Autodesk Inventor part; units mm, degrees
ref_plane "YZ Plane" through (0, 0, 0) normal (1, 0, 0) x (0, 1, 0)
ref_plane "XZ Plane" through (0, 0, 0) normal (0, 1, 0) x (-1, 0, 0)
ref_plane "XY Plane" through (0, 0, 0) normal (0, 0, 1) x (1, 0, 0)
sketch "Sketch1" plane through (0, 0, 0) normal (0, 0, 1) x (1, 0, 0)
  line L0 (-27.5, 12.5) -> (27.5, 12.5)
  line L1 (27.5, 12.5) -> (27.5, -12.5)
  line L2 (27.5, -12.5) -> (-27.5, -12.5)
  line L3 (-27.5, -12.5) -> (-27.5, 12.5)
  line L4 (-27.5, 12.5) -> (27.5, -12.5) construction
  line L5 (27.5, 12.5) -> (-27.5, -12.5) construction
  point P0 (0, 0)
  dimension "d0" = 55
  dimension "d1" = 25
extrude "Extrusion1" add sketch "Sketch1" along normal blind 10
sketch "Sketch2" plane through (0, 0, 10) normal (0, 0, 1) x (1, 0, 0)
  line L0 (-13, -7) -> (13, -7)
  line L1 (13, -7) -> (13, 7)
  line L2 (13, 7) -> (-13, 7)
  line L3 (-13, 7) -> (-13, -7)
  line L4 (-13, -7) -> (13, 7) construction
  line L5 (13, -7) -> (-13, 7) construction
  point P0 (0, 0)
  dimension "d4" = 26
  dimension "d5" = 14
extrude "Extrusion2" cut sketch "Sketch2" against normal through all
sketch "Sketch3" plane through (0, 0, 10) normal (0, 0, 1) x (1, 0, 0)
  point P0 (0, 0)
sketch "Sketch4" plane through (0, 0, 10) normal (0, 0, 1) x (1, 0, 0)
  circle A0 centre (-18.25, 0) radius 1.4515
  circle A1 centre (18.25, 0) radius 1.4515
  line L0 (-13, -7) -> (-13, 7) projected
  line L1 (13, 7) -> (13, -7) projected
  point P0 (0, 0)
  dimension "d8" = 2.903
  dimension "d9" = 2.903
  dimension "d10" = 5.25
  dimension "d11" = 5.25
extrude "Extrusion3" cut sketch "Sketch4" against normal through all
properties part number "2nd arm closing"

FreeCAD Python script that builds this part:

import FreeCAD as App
import Part
import Sketcher

V = App.Vector
Q = App.Units.Quantity


def add_polygon(sketch, points):
    """Adds a closed chain of lines whose ends are joined by coincident constraints."""
    first, n = sketch.GeometryCount, len(points)
    for a, b in zip(points, points[1:] + points[:1]):
        sketch.addGeometry(Part.LineSegment(App.Vector(*a, 0), App.Vector(*b, 0)), False)
    for i in range(n):
        sketch.addConstraint(Sketcher.Constraint("Coincident", first + i, 2, first + (i + 1) % n, 1))

doc = App.newDocument("Part")
body = doc.addObject("PartDesign::Body", "Body")

# Sketch on XY plane
sketch1 = doc.addObject("Sketcher::SketchObject", "Sketch")
body.addObject(sketch1)
sketch1.AttachmentSupport = (doc.XY_Plane, [""])
sketch1.MapMode = "FlatFace"
add_polygon(sketch1, [(28, 12), (-28, 12), (-28, -12), (28, -12)])  # lines 0-3
sketch1.addConstraint([
    Sketcher.Constraint("Horizontal", 0),
    Sketcher.Constraint("Vertical", 1),
    Sketcher.Constraint("Horizontal", 2),
    Sketcher.Constraint("Vertical", 3),
    Sketcher.Constraint("Symmetric", 0, 2, 2, 2, -1, 1),
    Sketcher.Constraint("DistanceX", 0, 2, 0, 1, Q("55 mm")),
    Sketcher.Constraint("DistanceY", 1, 2, 1, 1, Q("25 mm")),
])
pad1 = doc.addObject("PartDesign::Pad", "Pad")
body.addObject(pad1)
pad1.Profile = sketch1
pad1.Length = 10

# Sketch on XY plane
sketch2 = doc.addObject("Sketcher::SketchObject", "Sketch001")
body.addObject(sketch2)
sketch2.AttachmentSupport = (doc.XY_Plane, [""])
sketch2.MapMode = "FlatFace"
sketch2.AttachmentOffset = App.Placement(V(0, 0, 10), App.Rotation())
add_polygon(sketch2, [(-13, 7), (-13, -7), (13, -7), (13, 7)])  # lines 0-3
sketch2.addConstraint([
    Sketcher.Constraint("Vertical", 0),
    Sketcher.Constraint("Horizontal", 1),
    Sketcher.Constraint("Vertical", 2),
    Sketcher.Constraint("Horizontal", 3),
    Sketcher.Constraint("Symmetric", 0, 2, 2, 2, -1, 1),
    Sketcher.Constraint("DistanceX", 1, 1, 1, 2, Q("26 mm")),
    Sketcher.Constraint("DistanceY", 0, 2, 0, 1, Q("14 mm")),
])
pocket1 = doc.addObject("PartDesign::Pocket", "Pocket")
body.addObject(pocket1)
pocket1.Profile = sketch2
pocket1.Type = "ThroughAll"

# Sketch on XY plane
sketch3 = doc.addObject("Sketcher::SketchObject", "Sketch002")
body.addObject(sketch3)
sketch3.AttachmentSupport = (doc.XY_Plane, [""])
sketch3.MapMode = "FlatFace"
sketch3.AttachmentOffset = App.Placement(V(0, 0, 10), App.Rotation())
sketch3.addGeometry([
    Part.Circle(V(-18.2, 0, 0), V(0, 0, 1), 1.5),
    Part.Circle(V(18.2, 0, 0), V(0, 0, 1), 1.5),
], False)
sketch3.addConstraint([
    Sketcher.Constraint("Equal", 0, 1),
    Sketcher.Constraint("Symmetric", 0, 3, 1, 3, -1, 1),
    Sketcher.Constraint("PointOnObject", 0, 3, -1),
    Sketcher.Constraint("Diameter", 0, Q("2.903 mm")),
    Sketcher.Constraint("DistanceX", 0, 3, 1, 3, Q("36.5 mm")),
])
pocket2 = doc.addObject("PartDesign::Pocket", "Pocket001")
body.addObject(pocket2)
pocket2.Profile = sketch3
pocket2.Type = "ThroughAll"

doc.recompute()
